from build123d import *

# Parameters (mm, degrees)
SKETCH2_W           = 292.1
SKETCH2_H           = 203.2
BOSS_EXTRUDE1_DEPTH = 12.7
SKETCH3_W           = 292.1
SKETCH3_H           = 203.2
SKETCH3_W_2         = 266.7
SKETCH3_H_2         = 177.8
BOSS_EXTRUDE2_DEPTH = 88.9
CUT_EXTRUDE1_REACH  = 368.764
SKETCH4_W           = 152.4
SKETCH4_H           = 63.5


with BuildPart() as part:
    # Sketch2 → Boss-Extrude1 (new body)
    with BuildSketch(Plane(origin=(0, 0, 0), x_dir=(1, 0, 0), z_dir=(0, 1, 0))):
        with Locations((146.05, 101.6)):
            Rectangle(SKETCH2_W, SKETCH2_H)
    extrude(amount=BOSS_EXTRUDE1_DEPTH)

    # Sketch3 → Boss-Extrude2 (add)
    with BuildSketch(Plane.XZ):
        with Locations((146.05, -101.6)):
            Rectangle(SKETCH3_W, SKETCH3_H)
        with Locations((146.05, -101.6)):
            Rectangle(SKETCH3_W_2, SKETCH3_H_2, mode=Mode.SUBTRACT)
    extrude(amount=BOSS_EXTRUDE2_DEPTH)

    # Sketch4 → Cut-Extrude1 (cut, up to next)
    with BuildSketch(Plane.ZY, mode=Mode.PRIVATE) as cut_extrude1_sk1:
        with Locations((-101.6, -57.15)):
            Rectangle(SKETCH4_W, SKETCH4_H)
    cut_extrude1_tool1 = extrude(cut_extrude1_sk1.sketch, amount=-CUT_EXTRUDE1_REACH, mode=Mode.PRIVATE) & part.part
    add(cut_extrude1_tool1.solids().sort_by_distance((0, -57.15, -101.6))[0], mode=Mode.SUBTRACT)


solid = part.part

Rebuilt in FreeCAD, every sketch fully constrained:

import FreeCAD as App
import Part
import Sketcher
from FreeCAD import Vector
Q = App.Units.Quantity

doc = App.newDocument("Part")
body = doc.addObject("PartDesign::Body", "Body")

# Sketch on XZ plane
sketch1 = doc.addObject("Sketcher::SketchObject", "Sketch")
body.addObject(sketch1)
sketch1.AttachmentSupport = (doc.XZ_Plane, [""])
sketch1.MapMode = "FlatFace"
sketch1.addGeometry(Part.LineSegment(Vector(0, -203.2, 0), Vector(0, 0, 0)), False)
sketch1.addGeometry(Part.LineSegment(Vector(0, 0, 0), Vector(292.1, 0, 0)), False)
sketch1.addGeometry(Part.LineSegment(Vector(292.1, 0, 0), Vector(292.1, -203.2, 0)), False)
sketch1.addGeometry(Part.LineSegment(Vector(292.1, -203.2, 0), Vector(0, -203.2, 0)), False)
sketch1.addConstraint(Sketcher.Constraint("Coincident", 0, 2, 1, 1))
sketch1.addConstraint(Sketcher.Constraint("Coincident", 1, 2, 2, 1))
sketch1.addConstraint(Sketcher.Constraint("Coincident", 2, 2, 3, 1))
sketch1.addConstraint(Sketcher.Constraint("Coincident", 3, 2, 0, 1))
sketch1.addConstraint(Sketcher.Constraint("Vertical", 0))
sketch1.addConstraint(Sketcher.Constraint("Horizontal", 1))
sketch1.addConstraint(Sketcher.Constraint("Vertical", 2))
sketch1.addConstraint(Sketcher.Constraint("Horizontal", 3))
sketch1.addConstraint(Sketcher.Constraint("Coincident", 0, 2, -1, 1))
sketch1.addConstraint(Sketcher.Constraint("DistanceY", 0, 1, 0, 2, Q("8 in")))
sketch1.addConstraint(Sketcher.Constraint("DistanceX", 1, 1, 1, 2, Q("11.5 in")))
pad1 = doc.addObject("PartDesign::Pad", "Pad")
body.addObject(pad1)
pad1.Profile = sketch1
pad1.Length = Q("0.5 in")
pad1.Reversed = True

# Sketch on XZ plane
sketch2 = doc.addObject("Sketcher::SketchObject", "Sketch001")
body.addObject(sketch2)
sketch2.AttachmentSupport = (doc.XZ_Plane, [""])
sketch2.MapMode = "FlatFace"
sketch2.addGeometry(Part.LineSegment(Vector(0, 0, 0), Vector(0, -203.2, 0)), False)
sketch2.addGeometry(Part.LineSegment(Vector(0, -203.2, 0), Vector(292.1, -203.2, 0)), False)
sketch2.addGeometry(Part.LineSegment(Vector(292.1, -203.2, 0), Vector(292.1, 0, 0)), False)
sketch2.addGeometry(Part.LineSegment(Vector(292.1, 0, 0), Vector(0, 0, 0)), False)
sketch2.addGeometry(Part.LineSegment(Vector(279.4, -190.5, 0), Vector(12.7, -190.5, 0)), False)
sketch2.addGeometry(Part.LineSegment(Vector(12.7, -190.5, 0), Vector(12.7, -12.7, 0)), False)
sketch2.addGeometry(Part.LineSegment(Vector(12.7, -12.7, 0), Vector(279.4, -12.7, 0)), False)
sketch2.addGeometry(Part.LineSegment(Vector(279.4, -12.7, 0), Vector(279.4, -190.5, 0)), False)
sketch2.addConstraint(Sketcher.Constraint("Coincident", 0, 2, 1, 1))
sketch2.addConstraint(Sketcher.Constraint("Coincident", 1, 2, 2, 1))
sketch2.addConstraint(Sketcher.Constraint("Coincident", 2, 2, 3, 1))
sketch2.addConstraint(Sketcher.Constraint("Coincident", 3, 2, 0, 1))
sketch2.addConstraint(Sketcher.Constraint("Coincident", 4, 2, 5, 1))
sketch2.addConstraint(Sketcher.Constraint("Coincident", 5, 2, 6, 1))
sketch2.addConstraint(Sketcher.Constraint("Coincident", 6, 2, 7, 1))
sketch2.addConstraint(Sketcher.Constraint("Coincident", 7, 2, 4, 1))
sketch2.addConstraint(Sketcher.Constraint("Vertical", 0))
sketch2.addConstraint(Sketcher.Constraint("Horizontal", 1))
sketch2.addConstraint(Sketcher.Constraint("Vertical", 2))
sketch2.addConstraint(Sketcher.Constraint("Horizontal", 3))
sketch2.addConstraint(Sketcher.Constraint("Horizontal", 4))
sketch2.addConstraint(Sketcher.Constraint("Vertical", 5))
sketch2.addConstraint(Sketcher.Constraint("Horizontal", 6))
sketch2.addConstraint(Sketcher.Constraint("Vertical", 7))
sketch2.addConstraint(Sketcher.Constraint("Coincident", 3, 2, -1, 1))
sketch2.addConstraint(Sketcher.Constraint("DistanceY", 0, 2, 0, 1, Q("8 in")))
sketch2.addConstraint(Sketcher.Constraint("DistanceY", 5, 1, 5, 2, Q("7 in")))
sketch2.addConstraint(Sketcher.Constraint("DistanceX", 1, 1, 1, 2, Q("11.5 in")))
sketch2.addConstraint(Sketcher.Constraint("DistanceX", 4, 2, 4, 1, Q("10.5 in")))
sketch2.addConstraint(Sketcher.Constraint("DistanceX", -1, 1, 6, 2, Q("11 in")))
sketch2.addConstraint(Sketcher.Constraint("DistanceY", 4, 2, -1, 1, Q("7.5 in")))
pad2 = doc.addObject("PartDesign::Pad", "Pad001")
body.addObject(pad2)
pad2.Profile = sketch2
pad2.Length = Q("3.5 in")

# Sketch on YZ plane
sketch3 = doc.addObject("Sketcher::SketchObject", "Sketch002")
body.addObject(sketch3)
sketch3.AttachmentSupport = (doc.YZ_Plane, [""])
sketch3.MapMode = "FlatFace"
sketch3.addGeometry(Part.LineSegment(Vector(-25.4, -177.8, 0), Vector(-88.9, -177.8, 0)), False)
sketch3.addGeometry(Part.LineSegment(Vector(-88.9, -177.8, 0), Vector(-88.9, -25.4, 0)), False)
sketch3.addGeometry(Part.LineSegment(Vector(-88.9, -25.4, 0), Vector(-25.4, -25.4, 0)), False)
sketch3.addGeometry(Part.LineSegment(Vector(-25.4, -25.4, 0), Vector(-25.4, -177.8, 0)), False)
sketch3.addConstraint(Sketcher.Constraint("Coincident", 0, 2, 1, 1))
sketch3.addConstraint(Sketcher.Constraint("Coincident", 1, 2, 2, 1))
sketch3.addConstraint(Sketcher.Constraint("Coincident", 2, 2, 3, 1))
sketch3.addConstraint(Sketcher.Constraint("Coincident", 3, 2, 0, 1))
sketch3.addConstraint(Sketcher.Constraint("Horizontal", 0))
sketch3.addConstraint(Sketcher.Constraint("Vertical", 1))
sketch3.addConstraint(Sketcher.Constraint("Horizontal", 2))
sketch3.addConstraint(Sketcher.Constraint("Vertical", 3))
sketch3.addConstraint(Sketcher.Constraint("DistanceY", 1, 1, 1, 2, Q("6 in")))
sketch3.addConstraint(Sketcher.Constraint("DistanceX", 0, 2, 0, 1, Q("2.5 in")))
sketch3.addConstraint(Sketcher.Constraint("DistanceY", 0, 2, -1, 1, Q("7 in")))
sketch3.addConstraint(Sketcher.Constraint("DistanceX", 2, 2, -1, 1, Q("1 in")))
pocket1 = doc.addObject("PartDesign::Pocket", "Pocket")
body.addObject(pocket1)
pocket1.Profile = sketch3
pocket1.Type = "UpToFirst"
pocket1.Reversed = True

doc.recompute()
